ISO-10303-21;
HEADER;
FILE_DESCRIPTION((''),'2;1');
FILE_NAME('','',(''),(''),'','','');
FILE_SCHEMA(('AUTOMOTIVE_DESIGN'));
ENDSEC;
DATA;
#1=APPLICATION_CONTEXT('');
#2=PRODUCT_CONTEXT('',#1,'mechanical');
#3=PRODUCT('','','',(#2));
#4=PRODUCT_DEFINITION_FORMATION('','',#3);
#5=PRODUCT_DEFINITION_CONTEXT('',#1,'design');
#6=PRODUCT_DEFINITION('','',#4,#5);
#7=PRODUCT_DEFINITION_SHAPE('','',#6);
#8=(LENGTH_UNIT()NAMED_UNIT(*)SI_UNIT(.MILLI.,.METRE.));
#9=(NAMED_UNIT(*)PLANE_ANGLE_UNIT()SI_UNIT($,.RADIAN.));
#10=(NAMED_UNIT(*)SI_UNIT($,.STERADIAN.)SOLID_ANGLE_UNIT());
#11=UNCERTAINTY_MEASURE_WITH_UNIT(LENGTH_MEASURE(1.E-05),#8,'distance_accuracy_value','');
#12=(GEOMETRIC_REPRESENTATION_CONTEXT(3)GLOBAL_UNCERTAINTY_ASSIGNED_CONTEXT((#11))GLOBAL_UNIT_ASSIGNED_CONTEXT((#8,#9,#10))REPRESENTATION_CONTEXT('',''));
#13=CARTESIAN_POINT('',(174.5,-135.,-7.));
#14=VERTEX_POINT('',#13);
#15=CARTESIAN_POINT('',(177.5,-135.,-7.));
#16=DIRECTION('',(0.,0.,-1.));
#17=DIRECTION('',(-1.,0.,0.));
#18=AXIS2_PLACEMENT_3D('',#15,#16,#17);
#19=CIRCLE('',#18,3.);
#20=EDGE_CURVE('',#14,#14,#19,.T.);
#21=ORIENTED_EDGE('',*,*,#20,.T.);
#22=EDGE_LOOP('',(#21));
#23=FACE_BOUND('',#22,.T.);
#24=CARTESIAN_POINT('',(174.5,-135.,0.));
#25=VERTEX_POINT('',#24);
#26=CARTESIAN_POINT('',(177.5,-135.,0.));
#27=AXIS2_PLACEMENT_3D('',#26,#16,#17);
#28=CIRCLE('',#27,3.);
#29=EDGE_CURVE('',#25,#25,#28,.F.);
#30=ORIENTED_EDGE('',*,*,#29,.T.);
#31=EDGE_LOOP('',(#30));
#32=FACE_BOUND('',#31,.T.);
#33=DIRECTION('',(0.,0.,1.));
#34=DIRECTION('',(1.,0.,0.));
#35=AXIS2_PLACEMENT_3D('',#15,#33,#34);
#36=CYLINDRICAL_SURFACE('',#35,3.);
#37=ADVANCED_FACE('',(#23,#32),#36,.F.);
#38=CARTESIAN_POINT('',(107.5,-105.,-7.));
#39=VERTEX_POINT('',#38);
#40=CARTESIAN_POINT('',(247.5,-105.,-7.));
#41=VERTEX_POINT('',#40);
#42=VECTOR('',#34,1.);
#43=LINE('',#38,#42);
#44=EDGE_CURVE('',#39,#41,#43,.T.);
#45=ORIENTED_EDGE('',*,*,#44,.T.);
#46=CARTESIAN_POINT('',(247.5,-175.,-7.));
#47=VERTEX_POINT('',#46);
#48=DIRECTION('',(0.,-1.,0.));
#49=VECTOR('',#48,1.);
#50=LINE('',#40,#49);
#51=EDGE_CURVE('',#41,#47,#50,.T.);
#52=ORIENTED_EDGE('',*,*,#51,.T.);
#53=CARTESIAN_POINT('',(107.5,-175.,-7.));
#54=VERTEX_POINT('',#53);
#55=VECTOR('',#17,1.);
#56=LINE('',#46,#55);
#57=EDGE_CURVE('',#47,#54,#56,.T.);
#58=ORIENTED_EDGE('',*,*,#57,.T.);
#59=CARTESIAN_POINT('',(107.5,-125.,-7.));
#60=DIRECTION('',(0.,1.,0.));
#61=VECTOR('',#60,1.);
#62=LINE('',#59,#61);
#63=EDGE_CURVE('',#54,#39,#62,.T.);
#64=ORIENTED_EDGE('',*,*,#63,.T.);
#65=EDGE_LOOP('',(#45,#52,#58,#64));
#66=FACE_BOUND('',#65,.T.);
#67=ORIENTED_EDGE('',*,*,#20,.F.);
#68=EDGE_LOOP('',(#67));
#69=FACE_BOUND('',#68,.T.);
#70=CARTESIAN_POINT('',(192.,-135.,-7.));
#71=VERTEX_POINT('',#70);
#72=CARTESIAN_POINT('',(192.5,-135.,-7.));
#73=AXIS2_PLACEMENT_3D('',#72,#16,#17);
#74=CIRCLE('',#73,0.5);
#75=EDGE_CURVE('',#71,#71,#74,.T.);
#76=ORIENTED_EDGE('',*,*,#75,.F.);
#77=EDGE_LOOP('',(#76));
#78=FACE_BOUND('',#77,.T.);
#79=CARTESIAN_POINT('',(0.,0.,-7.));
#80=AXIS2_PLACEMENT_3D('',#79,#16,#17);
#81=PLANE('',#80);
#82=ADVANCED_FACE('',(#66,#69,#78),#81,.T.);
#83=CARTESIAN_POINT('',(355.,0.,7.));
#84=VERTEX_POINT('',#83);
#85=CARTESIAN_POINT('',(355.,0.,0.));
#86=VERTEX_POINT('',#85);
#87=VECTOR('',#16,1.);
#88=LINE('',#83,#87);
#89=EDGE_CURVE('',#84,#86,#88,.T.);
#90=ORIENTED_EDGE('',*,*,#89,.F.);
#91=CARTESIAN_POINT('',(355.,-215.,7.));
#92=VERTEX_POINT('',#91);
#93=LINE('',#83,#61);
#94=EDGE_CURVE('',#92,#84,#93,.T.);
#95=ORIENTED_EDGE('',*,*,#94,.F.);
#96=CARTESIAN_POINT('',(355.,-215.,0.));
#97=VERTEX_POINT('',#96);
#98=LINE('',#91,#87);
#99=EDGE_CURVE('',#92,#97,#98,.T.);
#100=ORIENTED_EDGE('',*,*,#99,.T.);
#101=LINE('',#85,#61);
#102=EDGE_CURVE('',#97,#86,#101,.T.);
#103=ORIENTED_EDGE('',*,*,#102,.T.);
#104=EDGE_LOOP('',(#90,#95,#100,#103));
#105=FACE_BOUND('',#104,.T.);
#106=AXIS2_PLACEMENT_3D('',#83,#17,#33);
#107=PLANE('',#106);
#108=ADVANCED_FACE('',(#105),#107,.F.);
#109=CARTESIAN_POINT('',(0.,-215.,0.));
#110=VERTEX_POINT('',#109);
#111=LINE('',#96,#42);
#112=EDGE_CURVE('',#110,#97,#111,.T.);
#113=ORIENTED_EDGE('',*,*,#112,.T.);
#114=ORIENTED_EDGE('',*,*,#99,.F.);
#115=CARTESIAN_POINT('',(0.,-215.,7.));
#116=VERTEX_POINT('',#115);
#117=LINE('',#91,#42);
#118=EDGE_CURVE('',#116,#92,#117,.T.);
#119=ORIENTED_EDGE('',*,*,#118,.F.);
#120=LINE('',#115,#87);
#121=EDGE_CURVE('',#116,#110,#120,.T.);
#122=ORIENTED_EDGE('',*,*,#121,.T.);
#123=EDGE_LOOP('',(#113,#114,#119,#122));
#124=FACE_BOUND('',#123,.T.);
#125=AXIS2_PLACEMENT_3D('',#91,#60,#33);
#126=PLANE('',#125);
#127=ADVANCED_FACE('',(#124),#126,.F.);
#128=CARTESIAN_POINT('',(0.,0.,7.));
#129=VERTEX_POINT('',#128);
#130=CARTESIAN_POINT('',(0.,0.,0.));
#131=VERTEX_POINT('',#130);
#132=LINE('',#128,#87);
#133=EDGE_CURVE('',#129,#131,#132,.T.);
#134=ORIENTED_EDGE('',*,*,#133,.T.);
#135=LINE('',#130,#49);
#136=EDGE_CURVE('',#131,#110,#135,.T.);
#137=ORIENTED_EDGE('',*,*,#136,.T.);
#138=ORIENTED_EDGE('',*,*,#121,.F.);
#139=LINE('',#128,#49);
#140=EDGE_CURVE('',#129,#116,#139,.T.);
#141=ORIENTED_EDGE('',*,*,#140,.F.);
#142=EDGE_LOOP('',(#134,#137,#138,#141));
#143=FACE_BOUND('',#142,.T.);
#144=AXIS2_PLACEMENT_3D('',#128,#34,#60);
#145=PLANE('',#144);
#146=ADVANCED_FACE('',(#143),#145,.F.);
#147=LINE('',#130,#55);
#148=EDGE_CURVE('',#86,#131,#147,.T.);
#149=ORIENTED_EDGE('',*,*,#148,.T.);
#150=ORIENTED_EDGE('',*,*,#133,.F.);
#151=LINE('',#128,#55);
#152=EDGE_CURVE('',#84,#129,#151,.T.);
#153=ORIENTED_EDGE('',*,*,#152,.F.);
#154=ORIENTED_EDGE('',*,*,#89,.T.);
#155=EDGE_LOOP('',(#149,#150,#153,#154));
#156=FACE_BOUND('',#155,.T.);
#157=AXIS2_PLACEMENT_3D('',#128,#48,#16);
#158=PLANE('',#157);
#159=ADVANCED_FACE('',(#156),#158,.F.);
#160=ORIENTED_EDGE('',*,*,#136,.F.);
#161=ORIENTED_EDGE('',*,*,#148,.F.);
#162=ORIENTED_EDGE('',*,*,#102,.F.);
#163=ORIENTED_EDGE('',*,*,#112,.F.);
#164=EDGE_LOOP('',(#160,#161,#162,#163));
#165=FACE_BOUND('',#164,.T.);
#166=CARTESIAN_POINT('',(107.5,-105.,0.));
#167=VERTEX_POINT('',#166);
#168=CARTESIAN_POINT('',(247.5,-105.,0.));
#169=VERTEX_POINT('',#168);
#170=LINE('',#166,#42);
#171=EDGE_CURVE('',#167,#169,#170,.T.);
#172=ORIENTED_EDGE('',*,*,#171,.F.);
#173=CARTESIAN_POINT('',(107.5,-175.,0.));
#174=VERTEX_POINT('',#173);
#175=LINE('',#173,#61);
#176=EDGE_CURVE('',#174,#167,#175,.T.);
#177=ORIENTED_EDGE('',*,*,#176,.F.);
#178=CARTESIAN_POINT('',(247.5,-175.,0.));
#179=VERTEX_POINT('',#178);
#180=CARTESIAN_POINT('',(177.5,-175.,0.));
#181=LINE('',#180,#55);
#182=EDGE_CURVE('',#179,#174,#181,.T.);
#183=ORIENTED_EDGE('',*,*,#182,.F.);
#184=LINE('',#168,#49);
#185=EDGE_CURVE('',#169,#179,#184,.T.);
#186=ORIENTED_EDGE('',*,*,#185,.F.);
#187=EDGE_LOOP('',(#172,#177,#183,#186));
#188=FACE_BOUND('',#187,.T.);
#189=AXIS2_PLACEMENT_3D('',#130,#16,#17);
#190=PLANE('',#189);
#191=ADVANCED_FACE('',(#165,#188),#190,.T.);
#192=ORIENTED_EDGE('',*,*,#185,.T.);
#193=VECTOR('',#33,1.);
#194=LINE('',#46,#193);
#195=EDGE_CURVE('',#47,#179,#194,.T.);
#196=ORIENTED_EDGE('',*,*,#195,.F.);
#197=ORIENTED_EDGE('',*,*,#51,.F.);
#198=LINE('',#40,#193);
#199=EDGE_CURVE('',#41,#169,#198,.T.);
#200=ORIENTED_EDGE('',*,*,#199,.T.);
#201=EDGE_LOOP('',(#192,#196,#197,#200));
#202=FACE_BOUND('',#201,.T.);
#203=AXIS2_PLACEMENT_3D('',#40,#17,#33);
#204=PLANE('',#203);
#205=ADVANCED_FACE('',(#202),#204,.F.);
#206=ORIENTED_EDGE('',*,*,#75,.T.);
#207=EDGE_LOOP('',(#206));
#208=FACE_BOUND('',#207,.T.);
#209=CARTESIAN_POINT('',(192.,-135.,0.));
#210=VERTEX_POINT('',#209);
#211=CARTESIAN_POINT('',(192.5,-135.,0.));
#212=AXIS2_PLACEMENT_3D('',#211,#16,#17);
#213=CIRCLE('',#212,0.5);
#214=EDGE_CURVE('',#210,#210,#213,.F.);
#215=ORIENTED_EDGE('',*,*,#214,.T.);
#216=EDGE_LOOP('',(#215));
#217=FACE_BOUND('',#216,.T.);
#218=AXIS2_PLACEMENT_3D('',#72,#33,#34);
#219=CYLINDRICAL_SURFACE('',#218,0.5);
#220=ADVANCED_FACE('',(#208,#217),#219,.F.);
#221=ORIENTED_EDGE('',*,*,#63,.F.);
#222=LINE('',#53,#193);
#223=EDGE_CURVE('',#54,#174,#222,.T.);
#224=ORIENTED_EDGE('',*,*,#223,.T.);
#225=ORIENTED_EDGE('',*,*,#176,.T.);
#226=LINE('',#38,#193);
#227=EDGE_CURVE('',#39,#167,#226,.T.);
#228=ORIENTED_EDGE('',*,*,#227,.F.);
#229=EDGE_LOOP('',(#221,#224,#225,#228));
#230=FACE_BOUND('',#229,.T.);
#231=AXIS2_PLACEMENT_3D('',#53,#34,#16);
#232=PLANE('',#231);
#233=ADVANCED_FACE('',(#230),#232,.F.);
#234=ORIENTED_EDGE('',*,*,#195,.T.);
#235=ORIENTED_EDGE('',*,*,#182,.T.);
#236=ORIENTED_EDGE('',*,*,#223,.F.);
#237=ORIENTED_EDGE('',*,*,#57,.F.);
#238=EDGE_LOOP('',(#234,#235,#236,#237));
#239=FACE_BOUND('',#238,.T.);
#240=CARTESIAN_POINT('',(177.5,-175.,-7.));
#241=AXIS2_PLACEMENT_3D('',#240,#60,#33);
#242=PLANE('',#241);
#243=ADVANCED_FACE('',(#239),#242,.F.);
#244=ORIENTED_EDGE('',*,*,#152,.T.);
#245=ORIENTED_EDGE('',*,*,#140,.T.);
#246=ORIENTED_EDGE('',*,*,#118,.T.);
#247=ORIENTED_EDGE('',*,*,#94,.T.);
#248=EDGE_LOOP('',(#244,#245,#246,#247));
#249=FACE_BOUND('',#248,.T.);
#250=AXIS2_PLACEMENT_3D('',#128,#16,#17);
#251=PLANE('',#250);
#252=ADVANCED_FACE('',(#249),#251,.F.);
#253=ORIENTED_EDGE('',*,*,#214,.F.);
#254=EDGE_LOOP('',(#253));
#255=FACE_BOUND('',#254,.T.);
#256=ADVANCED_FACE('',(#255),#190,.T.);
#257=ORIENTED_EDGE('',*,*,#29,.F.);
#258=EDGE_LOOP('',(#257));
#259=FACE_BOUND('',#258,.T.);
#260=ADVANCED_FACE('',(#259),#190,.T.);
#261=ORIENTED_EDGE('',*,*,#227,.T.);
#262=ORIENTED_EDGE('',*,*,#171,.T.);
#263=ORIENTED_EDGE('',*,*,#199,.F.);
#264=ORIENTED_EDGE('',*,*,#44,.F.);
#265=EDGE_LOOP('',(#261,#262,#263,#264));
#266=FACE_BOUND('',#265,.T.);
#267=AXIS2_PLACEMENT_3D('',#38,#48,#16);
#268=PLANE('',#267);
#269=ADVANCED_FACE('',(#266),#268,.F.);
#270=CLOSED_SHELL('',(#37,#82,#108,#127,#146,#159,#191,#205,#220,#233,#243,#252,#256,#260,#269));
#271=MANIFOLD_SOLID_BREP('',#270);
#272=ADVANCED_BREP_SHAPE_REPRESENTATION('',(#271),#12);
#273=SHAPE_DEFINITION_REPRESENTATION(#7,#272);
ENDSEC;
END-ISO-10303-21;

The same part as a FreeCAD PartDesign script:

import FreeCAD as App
import Part
import Sketcher
Q = App.Units.Quantity

doc = App.newDocument("Part")
body = doc.addObject("PartDesign::Body", "Body")

sketch1 = body.newObject("Sketcher::SketchObject", "Sketch")
sketch1.AttachmentSupport = (doc.getObject("XY_Plane"), [""])
sketch1.MapMode = "FlatFace"
sketch1.addGeometry([
    Part.LineSegment(App.Vector(0, 0, 0), App.Vector(0, -215, 0)),
    Part.LineSegment(App.Vector(0, -215, 0), App.Vector(355, -215, 0)),
    Part.LineSegment(App.Vector(355, -215, 0), App.Vector(355, 0, 0)),
    Part.LineSegment(App.Vector(355, 0, 0), App.Vector(0, 0, 0)),
], False)
sketch1.addConstraint([
    Sketcher.Constraint("Coincident", 0, 2, 1, 1),
    Sketcher.Constraint("Coincident", 1, 2, 2, 1),
    Sketcher.Constraint("Coincident", 2, 2, 3, 1),
    Sketcher.Constraint("Coincident", 3, 2, 0, 1),
    Sketcher.Constraint("Vertical", 0),
    Sketcher.Constraint("Horizontal", 1),
    Sketcher.Constraint("Vertical", 2),
    Sketcher.Constraint("Horizontal", 3),
    Sketcher.Constraint("Coincident", 3, 2, -1, 1),
    Sketcher.Constraint("DistanceX", 1, 1, 1, 2, Q("355 mm")),
    Sketcher.Constraint("DistanceY", 0, 2, 0, 1, Q("215 mm")),
])
pad1 = body.newObject("PartDesign::Pad", "Pad")
pad1.Profile = sketch1
pad1.Length = 7

sketch2 = body.newObject("Sketcher::SketchObject", "Sketch001")
sketch2.AttachmentSupport = (doc.getObject("XY_Plane"), [""])
sketch2.MapMode = "FlatFace"
sketch2.addGeometry([
    Part.LineSegment(App.Vector(107.5, -175, 0), App.Vector(107.5, -105, 0)),
    Part.LineSegment(App.Vector(107.5, -105, 0), App.Vector(247.5, -105, 0)),
    Part.LineSegment(App.Vector(247.5, -105, 0), App.Vector(247.5, -175, 0)),
    Part.LineSegment(App.Vector(247.5, -175, 0), App.Vector(107.5, -175, 0)),
    Part.Circle(App.Vector(192.5, -135, 0), App.Vector(0, 0, 1), 0.5),
    Part.Circle(App.Vector(177.5, -135, 0), App.Vector(0, 0, 1), 3),
], False)
sketch2.addConstraint([
    Sketcher.Constraint("Coincident", 0, 2, 1, 1),
    Sketcher.Constraint("Coincident", 1, 2, 2, 1),
    Sketcher.Constraint("Coincident", 2, 2, 3, 1),
    Sketcher.Constraint("Coincident", 3, 2, 0, 1),
    Sketcher.Constraint("Vertical", 0),
    Sketcher.Constraint("Horizontal", 1),
    Sketcher.Constraint("Vertical", 2),
    Sketcher.Constraint("Horizontal", 3),
    Sketcher.Constraint("Horizontal", 4, 3, 5, 3),
    Sketcher.Constraint("Diameter", 4, Q("1 mm")),
    Sketcher.Constraint("Diameter", 5, Q("6 mm")),
    Sketcher.Constraint("DistanceX", 1, 1, 1, 2, Q("140 mm")),
    Sketcher.Constraint("DistanceY", 0, 1, 0, 2, Q("70 mm")),
    Sketcher.Constraint("DistanceY", 4, 3, -1, 1, Q("135 mm")),
    Sketcher.Constraint("DistanceY", 0, 2, -1, 1, Q("105 mm")),
    Sketcher.Constraint("DistanceX", 5, 3, 4, 3, Q("15 mm")),
    Sketcher.Constraint("DistanceX", 0, 2, 5, 3, Q("70 mm")),
    Sketcher.Constraint("DistanceX", -1, 1, 4, 3, Q("192.5 mm")),
])
pad2 = body.newObject("PartDesign::Pad", "Pad001")
pad2.Profile = sketch2
pad2.Length = 7
pad2.Reversed = True

doc.recompute()
